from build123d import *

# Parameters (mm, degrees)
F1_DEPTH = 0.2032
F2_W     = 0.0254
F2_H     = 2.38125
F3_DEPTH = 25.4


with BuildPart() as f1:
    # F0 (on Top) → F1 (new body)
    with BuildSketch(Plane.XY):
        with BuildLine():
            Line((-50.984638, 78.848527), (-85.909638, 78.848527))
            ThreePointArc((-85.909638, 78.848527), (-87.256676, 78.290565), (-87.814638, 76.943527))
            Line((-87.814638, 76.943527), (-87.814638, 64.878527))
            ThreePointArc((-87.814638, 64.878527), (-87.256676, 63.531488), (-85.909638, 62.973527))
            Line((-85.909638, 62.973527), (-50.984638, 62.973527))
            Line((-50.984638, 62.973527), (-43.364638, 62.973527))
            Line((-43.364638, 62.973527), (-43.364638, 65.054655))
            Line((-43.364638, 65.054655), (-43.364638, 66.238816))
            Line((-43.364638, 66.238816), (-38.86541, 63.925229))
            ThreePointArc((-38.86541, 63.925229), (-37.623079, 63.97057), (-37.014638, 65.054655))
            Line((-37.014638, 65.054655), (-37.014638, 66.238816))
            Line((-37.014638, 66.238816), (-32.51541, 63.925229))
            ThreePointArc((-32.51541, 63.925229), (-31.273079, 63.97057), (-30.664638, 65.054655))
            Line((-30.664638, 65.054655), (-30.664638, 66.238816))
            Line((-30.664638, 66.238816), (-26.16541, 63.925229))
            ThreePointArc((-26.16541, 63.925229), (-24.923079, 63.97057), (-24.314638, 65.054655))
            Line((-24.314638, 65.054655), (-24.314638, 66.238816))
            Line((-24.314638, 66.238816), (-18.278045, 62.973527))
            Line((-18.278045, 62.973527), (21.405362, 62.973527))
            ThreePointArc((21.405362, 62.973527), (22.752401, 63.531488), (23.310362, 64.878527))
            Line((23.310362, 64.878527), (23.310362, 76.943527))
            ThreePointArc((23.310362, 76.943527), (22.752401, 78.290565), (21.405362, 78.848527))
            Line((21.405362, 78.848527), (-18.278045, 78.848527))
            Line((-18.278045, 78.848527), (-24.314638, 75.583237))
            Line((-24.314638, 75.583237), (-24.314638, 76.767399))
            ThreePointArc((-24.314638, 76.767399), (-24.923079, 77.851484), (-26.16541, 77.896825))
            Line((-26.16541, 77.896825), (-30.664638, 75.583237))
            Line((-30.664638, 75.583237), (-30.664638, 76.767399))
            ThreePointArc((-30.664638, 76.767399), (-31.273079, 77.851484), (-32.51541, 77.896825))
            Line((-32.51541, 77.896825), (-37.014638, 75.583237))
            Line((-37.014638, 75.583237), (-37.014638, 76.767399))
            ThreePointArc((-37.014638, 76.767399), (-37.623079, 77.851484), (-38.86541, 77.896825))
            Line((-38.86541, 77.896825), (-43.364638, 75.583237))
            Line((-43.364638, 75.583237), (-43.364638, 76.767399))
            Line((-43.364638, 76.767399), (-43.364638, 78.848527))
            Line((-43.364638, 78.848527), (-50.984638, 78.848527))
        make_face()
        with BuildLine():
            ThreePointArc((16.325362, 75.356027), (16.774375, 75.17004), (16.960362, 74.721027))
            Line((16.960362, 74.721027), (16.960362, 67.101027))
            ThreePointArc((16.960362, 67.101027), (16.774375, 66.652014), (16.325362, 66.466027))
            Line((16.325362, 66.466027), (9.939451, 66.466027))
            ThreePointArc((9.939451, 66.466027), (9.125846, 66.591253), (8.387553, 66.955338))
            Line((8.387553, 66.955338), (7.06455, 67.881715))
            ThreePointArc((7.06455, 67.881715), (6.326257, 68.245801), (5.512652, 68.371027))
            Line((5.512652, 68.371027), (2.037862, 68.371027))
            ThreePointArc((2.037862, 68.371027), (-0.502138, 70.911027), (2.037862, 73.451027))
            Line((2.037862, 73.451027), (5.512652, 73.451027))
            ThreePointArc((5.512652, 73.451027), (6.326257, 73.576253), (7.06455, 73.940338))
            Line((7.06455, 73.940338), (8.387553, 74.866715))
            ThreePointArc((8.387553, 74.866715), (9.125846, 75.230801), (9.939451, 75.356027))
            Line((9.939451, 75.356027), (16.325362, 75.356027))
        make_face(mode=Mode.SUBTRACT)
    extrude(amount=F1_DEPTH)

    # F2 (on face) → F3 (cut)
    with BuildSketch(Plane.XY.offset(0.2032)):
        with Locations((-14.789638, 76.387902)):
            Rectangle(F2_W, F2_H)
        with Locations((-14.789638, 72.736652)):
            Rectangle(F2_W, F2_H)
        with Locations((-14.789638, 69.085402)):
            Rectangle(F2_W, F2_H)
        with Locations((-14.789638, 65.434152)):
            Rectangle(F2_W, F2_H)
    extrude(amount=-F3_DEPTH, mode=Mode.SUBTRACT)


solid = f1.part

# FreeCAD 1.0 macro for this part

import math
import FreeCAD as App
import Part
import Sketcher
Q = App.Units.Quantity


def add_polygon(sketch, points):
    """Adds a closed chain of lines whose ends are joined by coincident constraints."""
    first, n = sketch.GeometryCount, len(points)
    for a, b in zip(points, points[1:] + points[:1]):
        sketch.addGeometry(Part.LineSegment(App.Vector(*a, 0), App.Vector(*b, 0)), False)
    for i in range(n):
        sketch.addConstraint(Sketcher.Constraint("Coincident", first + i, 2, first + (i + 1) % n, 1))

doc = App.newDocument("Part")
params = doc.addObject("Spreadsheet::Sheet", "Params")
for row, (alias, value) in enumerate([
    ("sketch1_radius", "0.1 in"),
    ("sketch1_radius2", "0.05 in"),
    ("sketch1_height", "0.3 in"),
    ("sketch1_radius3", "0.0750001 in"),
    ("sketch1_radius4", "0.025 in"),
    ("pad1_length", "0.008 in"),
    ("sketch2_width", "0.001 in"),
    ("sketch2_height", "0.09375 in"),
    ("pocket1_length", "1 in"),
], start=1):
    params.set(f"A{row}", alias)
    params.set(f"B{row}", "=" + value)
    params.setAlias(f"B{row}", alias)

body = doc.addObject("PartDesign::Body", "Body")

sketch1 = doc.addObject("Sketcher::SketchObject", "Sketch")
body.addObject(sketch1)
sketch1.AttachmentSupport = (doc.XY_Plane, [""])
sketch1.MapMode = "FlatFace"
sketch1.addGeometry([
    Part.ArcOfCircle(Part.Circle(App.Vector(-85.9, 76.9, 0), App.Vector(0, 0, 1), 1.9), math.radians(90), math.radians(180)),
    Part.LineSegment(App.Vector(-87.8, 76.9, 0), App.Vector(-87.8, 64.9, 0)),
    Part.ArcOfCircle(Part.Circle(App.Vector(-85.9, 64.9, 0), App.Vector(0, 0, 1), 1.9), math.radians(180), math.radians(270)),
    Part.LineSegment(App.Vector(-85.9, 63, 0), App.Vector(-43.4, 63, 0)),
    Part.LineSegment(App.Vector(-43.4, 63, 0), App.Vector(-43.4, 66.2, 0)),
    Part.LineSegment(App.Vector(-43.4, 66.2, 0), App.Vector(-38.9, 63.9, 0)),
    Part.ArcOfCircle(Part.Circle(App.Vector(-38.3, 65.1, 0), App.Vector(0, 0, 1), 1.3), math.radians(-117), math.radians(0)),
    Part.LineSegment(App.Vector(-37, 65.1, 0), App.Vector(-37, 66.2, 0)),
    Part.LineSegment(App.Vector(-37, 66.2, 0), App.Vector(-32.5, 63.9, 0)),
    Part.ArcOfCircle(Part.Circle(App.Vector(-31.9, 65.1, 0), App.Vector(0, 0, 1), 1.3), math.radians(-117), math.radians(0)),
    Part.LineSegment(App.Vector(-30.7, 65.1, 0), App.Vector(-30.7, 66.2, 0)),
    Part.LineSegment(App.Vector(-30.7, 66.2, 0), App.Vector(-26.2, 63.9, 0)),
    Part.ArcOfCircle(Part.Circle(App.Vector(-25.6, 65.1, 0), App.Vector(0, 0, 1), 1.3), math.radians(-117), math.radians(0)),
    Part.LineSegment(App.Vector(-24.3, 65.1, 0), App.Vector(-24.3, 66.2, 0)),
    Part.LineSegment(App.Vector(-24.3, 66.2, 0), App.Vector(-18.3, 63, 0)),
    Part.LineSegment(App.Vector(-18.3, 63, 0), App.Vector(21.4, 63, 0)),
    Part.ArcOfCircle(Part.Circle(App.Vector(21.4, 64.9, 0), App.Vector(0, 0, 1), 1.9), math.radians(-90), math.radians(0)),
    Part.LineSegment(App.Vector(23.3, 64.9, 0), App.Vector(23.3, 76.9, 0)),
    Part.ArcOfCircle(Part.Circle(App.Vector(21.4, 76.9, 0), App.Vector(0, 0, 1), 1.9), math.radians(0), math.radians(90)),
    Part.LineSegment(App.Vector(21.4, 78.8, 0), App.Vector(-18.3, 78.8, 0)),
    Part.LineSegment(App.Vector(-18.3, 78.8, 0), App.Vector(-24.3, 75.6, 0)),
    Part.LineSegment(App.Vector(-24.3, 75.6, 0), App.Vector(-24.3, 76.8, 0)),
    Part.ArcOfCircle(Part.Circle(App.Vector(-25.6, 76.8, 0), App.Vector(0, 0, 1), 1.3), math.radians(0), math.radians(117)),
    Part.LineSegment(App.Vector(-26.2, 77.9, 0), App.Vector(-30.7, 75.6, 0)),
    Part.LineSegment(App.Vector(-30.7, 75.6, 0), App.Vector(-30.7, 76.8, 0)),
    Part.ArcOfCircle(Part.Circle(App.Vector(-31.9, 76.8, 0), App.Vector(0, 0, 1), 1.3), math.radians(0), math.radians(117)),
    Part.LineSegment(App.Vector(-32.5, 77.9, 0), App.Vector(-37, 75.6, 0)),
    Part.LineSegment(App.Vector(-37, 75.6, 0), App.Vector(-37, 76.8, 0)),
    Part.ArcOfCircle(Part.Circle(App.Vector(-38.3, 76.8, 0), App.Vector(0, 0, 1), 1.3), math.radians(0), math.radians(117)),
    Part.LineSegment(App.Vector(-38.9, 77.9, 0), App.Vector(-43.4, 75.6, 0)),
    Part.LineSegment(App.Vector(-43.4, 75.6, 0), App.Vector(-43.4, 78.8, 0)),
    Part.LineSegment(App.Vector(-43.4, 78.8, 0), App.Vector(-85.9, 78.8, 0)),
    Part.LineSegment(App.Vector(9.9, 75.4, 0), App.Vector(16.3, 75.4, 0)),
    Part.ArcOfCircle(Part.Circle(App.Vector(16.3, 74.7, 0), App.Vector(0, 0, 1), 0.6), math.radians(0), math.radians(90)),
    Part.LineSegment(App.Vector(17, 74.7, 0), App.Vector(17, 67.1, 0)),
    Part.ArcOfCircle(Part.Circle(App.Vector(16.3, 67.1, 0), App.Vector(0, 0, 1), 0.6), math.radians(-90), math.radians(0)),
    Part.LineSegment(App.Vector(16.3, 66.5, 0), App.Vector(9.9, 66.5, 0)),
    Part.ArcOfCircle(Part.Circle(App.Vector(9.9, 69.2, 0), App.Vector(0, 0, 1), 2.7), math.radians(-125), math.radians(-90)),
    Part.LineSegment(App.Vector(8.4, 67, 0), App.Vector(7.1, 67.9, 0)),
    Part.ArcOfCircle(Part.Circle(App.Vector(5.5, 65.7, 0), App.Vector(0, 0, 1), 2.7), math.radians(55), math.radians(90)),
    Part.LineSegment(App.Vector(5.5, 68.4, 0), App.Vector(2, 68.4, 0)),
    Part.ArcOfCircle(Part.Circle(App.Vector(2, 70.9, 0), App.Vector(0, 0, 1), 2.5), math.radians(90), math.radians(270)),
    Part.LineSegment(App.Vector(2, 73.5, 0), App.Vector(5.5, 73.5, 0)),
    Part.ArcOfCircle(Part.Circle(App.Vector(5.5, 76.2, 0), App.Vector(0, 0, 1), 2.7), math.radians(-90), math.radians(-55)),
    Part.LineSegment(App.Vector(7.1, 73.9, 0), App.Vector(8.4, 74.9, 0)),
    Part.ArcOfCircle(Part.Circle(App.Vector(9.9, 72.7, 0), App.Vector(0, 0, 1), 2.7), math.radians(90), math.radians(125)),
], False)
sketch1.addConstraint([
    Sketcher.Constraint("Tangent", 0, 2, 1, 1),
    Sketcher.Constraint("Tangent", 1, 2, 2, 1),
    Sketcher.Constraint("Tangent", 2, 2, 3, 1),
    Sketcher.Constraint("Coincident", 3, 2, 4, 1),
    Sketcher.Constraint("Coincident", 4, 2, 5, 1),
    Sketcher.Constraint("Tangent", 5, 2, 6, 1),
    Sketcher.Constraint("Tangent", 6, 2, 7, 1),
    Sketcher.Constraint("Coincident", 7, 2, 8, 1),
    Sketcher.Constraint("Tangent", 8, 2, 9, 1),
    Sketcher.Constraint("Tangent", 9, 2, 10, 1),
    Sketcher.Constraint("Coincident", 10, 2, 11, 1),
    Sketcher.Constraint("Tangent", 11, 2, 12, 1),
    Sketcher.Constraint("Tangent", 12, 2, 13, 1),
    Sketcher.Constraint("Coincident", 13, 2, 14, 1),
    Sketcher.Constraint("Coincident", 14, 2, 15, 1),
    Sketcher.Constraint("Tangent", 15, 2, 16, 1),
    Sketcher.Constraint("Tangent", 16, 2, 17, 1),
    Sketcher.Constraint("Tangent", 17, 2, 18, 1),
    Sketcher.Constraint("Tangent", 18, 2, 19, 1),
    Sketcher.Constraint("Coincident", 19, 2, 20, 1),
    Sketcher.Constraint("Coincident", 20, 2, 21, 1),
    Sketcher.Constraint("Tangent", 21, 2, 22, 1),
    Sketcher.Constraint("Tangent", 22, 2, 23, 1),
    Sketcher.Constraint("Coincident", 23, 2, 24, 1),
    Sketcher.Constraint("Tangent", 24, 2, 25, 1),
    Sketcher.Constraint("Tangent", 25, 2, 26, 1),
    Sketcher.Constraint("Coincident", 26, 2, 27, 1),
    Sketcher.Constraint("Tangent", 27, 2, 28, 1),
    Sketcher.Constraint("Tangent", 28, 2, 29, 1),
    Sketcher.Constraint("Coincident", 29, 2, 30, 1),
    Sketcher.Constraint("Coincident", 30, 2, 31, 1),
    Sketcher.Constraint("Tangent", 31, 2, 0, 1),
    Sketcher.Constraint("Tangent", 32, 2, 33, 2),
    Sketcher.Constraint("Tangent", 33, 1, 34, 1),
    Sketcher.Constraint("Tangent", 34, 2, 35, 2),
    Sketcher.Constraint("Tangent", 35, 1, 36, 1),
    Sketcher.Constraint("Tangent", 36, 2, 37, 2),
    Sketcher.Constraint("Tangent", 37, 1, 38, 1),
    Sketcher.Constraint("Tangent", 38, 2, 39, 1),
    Sketcher.Constraint("Tangent", 39, 2, 40, 1),
    Sketcher.Constraint("Tangent", 40, 2, 41, 2),
    Sketcher.Constraint("Tangent", 41, 1, 42, 1),
    Sketcher.Constraint("Tangent", 42, 2, 43, 1),
    Sketcher.Constraint("Tangent", 43, 2, 44, 1),
    Sketcher.Constraint("Tangent", 44, 2, 45, 2),
    Sketcher.Constraint("Tangent", 45, 1, 32, 1),
    Sketcher.Constraint("Vertical", 1),
    Sketcher.Constraint("Horizontal", 3),
    Sketcher.Constraint("Vertical", 4),
    Sketcher.Constraint("Vertical", 7),
    Sketcher.Constraint("Vertical", 10),
    Sketcher.Constraint("Vertical", 13),
    Sketcher.Constraint("Horizontal", 15),
    Sketcher.Constraint("Vertical", 17),
    Sketcher.Constraint("Horizontal", 19),
    Sketcher.Constraint("Vertical", 21),
    Sketcher.Constraint("Vertical", 24),
    Sketcher.Constraint("Vertical", 27),
    Sketcher.Constraint("Vertical", 30),
    Sketcher.Constraint("Horizontal", 31),
    Sketcher.Constraint("Horizontal", 32),
    Sketcher.Constraint("Vertical", 34),
    Sketcher.Constraint("Horizontal", 36),
    Sketcher.Constraint("Horizontal", 40),
    Sketcher.Constraint("Horizontal", 42),
    Sketcher.Constraint("Equal", 0, 2),
    Sketcher.Constraint("Equal", 6, 9),
    Sketcher.Constraint("Equal", 9, 12),
    Sketcher.Constraint("Equal", 2, 16),
    Sketcher.Constraint("Equal", 16, 18),
    Sketcher.Constraint("Equal", 12, 22),
    Sketcher.Constraint("Equal", 22, 25),
    Sketcher.Constraint("Equal", 25, 28),
    Sketcher.Constraint("Equal", 33, 35),
    Sketcher.Constraint("Equal", 37, 43),
    Sketcher.Constraint("Equal", 39, 45),
    Sketcher.Constraint("Parallel", 5, 8),
    Sketcher.Constraint("Parallel", 8, 11),
    Sketcher.Constraint("Parallel", 23, 26),
    Sketcher.Constraint("Parallel", 26, 29),
    Sketcher.Constraint("Horizontal", 6, 3, 9, 3),
    Sketcher.Constraint("Horizontal", 9, 3, 12, 3),
    Sketcher.Constraint("Horizontal", 2, 3, 16, 3),
    Sketcher.Constraint("Horizontal", 0, 3, 18, 3),
    Sketcher.Constraint("Horizontal", 22, 3, 25, 3),
    Sketcher.Constraint("Horizontal", 25, 3, 28, 3),
    Sketcher.Constraint("Horizontal", 4, 2, 7, 2),
    Sketcher.Constraint("Horizontal", 7, 2, 10, 2),
    Sketcher.Constraint("Horizontal", 10, 2, 13, 2),
    Sketcher.Constraint("Horizontal", 20, 2, 23, 2),
    Sketcher.Constraint("Horizontal", 23, 2, 26, 2),
    Sketcher.Constraint("Horizontal", 26, 2, 29, 2),
    Sketcher.Constraint("Vertical", 12, 3, 22, 3),
    Sketcher.Constraint("Vertical", 9, 3, 25, 3),
    Sketcher.Constraint("Vertical", 39, 3, 43, 3),
    Sketcher.Constraint("Vertical", 37, 3, 45, 3),
    Sketcher.Constraint("Vertical", 14, 2, 19, 2),
    Sketcher.Constraint("Vertical", 11, 2, 22, 2),
    Sketcher.Constraint("Vertical", 38, 2, 43, 2),
    Sketcher.Constraint("Vertical", 37, 1, 44, 2),
    Sketcher.Constraint("Equal", 4, 30),
    Sketcher.Constraint("Radius", 41, Q("0.1 in")),
    Sketcher.Constraint("Radius", 6, Q("0.05 in")),
    Sketcher.Constraint("DistanceY", 34, 2, 34, 1, Q("0.3 in")),
    Sketcher.Constraint("Angle", 38, Q("144.999991 deg")),
    Sketcher.Constraint("Radius", 0, Q("0.0750001 in")),
    Sketcher.Constraint("Radius", 33, Q("0.025 in")),
    Sketcher.Constraint("DistanceX", 3, 1, 3, 2, Q("1.675 in")),
    Sketcher.Constraint("DistanceY", 1, 2, 1, 1, Q("0.475 in")),
    Sketcher.Constraint("Radius", 37, Q("2.705661 mm")),
    Sketcher.Constraint("DistanceX", 32, 1, 32, 2, Q("6.385911 mm")),
    Sketcher.Constraint("DistanceX", 40, 2, 40, 1, Q("3.47479 mm")),
    Sketcher.Constraint("DistanceY", 4, 1, 4, 2, Q("3.265289 mm")),
    Sketcher.Constraint("DistanceY", 7, 1, 7, 2, Q("1.184161 mm")),
    Sketcher.Constraint("DistanceY", -1, 1, 22, 3, Q("76.7674 mm")),
    Sketcher.Constraint("Distance", 14, Q("6.863131 mm")),
    Sketcher.Constraint("DistanceX", 15, 1, 15, 2, Q("39.683407 mm")),
    Sketcher.Constraint("DistanceX", 2, 3, -1, 1, Q("85.909638 mm")),
    Sketcher.Constraint("DistanceY", -1, 1, 37, 3, Q("69.171688 mm")),
    Sketcher.Constraint("DistanceX", -1, 1, 39, 3, Q("5.512651 mm")),
    Sketcher.Constraint("DistanceX", 5, 2, -1, 1, Q("38.86541 mm")),
])
sketch1.setExpression("Constraints[101]", "Params.sketch1_radius")
sketch1.setExpression("Constraints[102]", "Params.sketch1_radius2")
sketch1.setExpression("Constraints[103]", "Params.sketch1_height")
sketch1.setExpression("Constraints[105]", "Params.sketch1_radius3")
sketch1.setExpression("Constraints[106]", "Params.sketch1_radius4")
pad1 = doc.addObject("PartDesign::Pad", "Pad")
body.addObject(pad1)
pad1.Profile = sketch1
pad1.setExpression("Length", "Params.pad1_length")

sketch2 = doc.addObject("Sketcher::SketchObject", "Sketch001")
body.addObject(sketch2)
sketch2.AttachmentSupport = (doc.XY_Plane, [""])
sketch2.MapMode = "FlatFace"
sketch2.AttachmentOffset = App.Placement(App.Vector(0, 0, 0.008 * 25.4), App.Rotation())
add_polygon(sketch2, [(-14.802, 77.579), (-14.802, 75.197), (-14.777, 75.197), (-14.777, 77.579)])
add_polygon(sketch2, [(-14.802, 73.927), (-14.802, 71.546), (-14.777, 71.546), (-14.777, 73.927)])
add_polygon(sketch2, [(-14.802, 70.276), (-14.802, 67.895), (-14.777, 67.895), (-14.777, 70.276)])
add_polygon(sketch2, [(-14.802, 66.625), (-14.802, 64.244), (-14.777, 64.244), (-14.777, 66.625)])
sketch2.addConstraint([
    Sketcher.Constraint("Vertical", 0),
    Sketcher.Constraint("Horizontal", 1),
    Sketcher.Constraint("Vertical", 2),
    Sketcher.Constraint("Horizontal", 3),
    Sketcher.Constraint("Vertical", 4),
    Sketcher.Constraint("Horizontal", 5),
    Sketcher.Constraint("Vertical", 6),
    Sketcher.Constraint("Horizontal", 7),
    Sketcher.Constraint("Vertical", 8),
    Sketcher.Constraint("Horizontal", 9),
    Sketcher.Constraint("Vertical", 10),
    Sketcher.Constraint("Horizontal", 11),
    Sketcher.Constraint("Vertical", 12),
    Sketcher.Constraint("Horizontal", 13),
    Sketcher.Constraint("Vertical", 14),
    Sketcher.Constraint("Horizontal", 15),
    Sketcher.Constraint("Vertical", 3, 2, 4, 2),
    Sketcher.Constraint("Vertical", 2, 2, 5, 2),
    Sketcher.Constraint("Vertical", 7, 2, 8, 2),
    Sketcher.Constraint("Vertical", 6, 2, 9, 2),
    Sketcher.Constraint("Vertical", 11, 2, 12, 2),
    Sketcher.Constraint("Vertical", 10, 2, 13, 2),
    Sketcher.Constraint("Equal", 2, 4),
    Sketcher.Constraint("Equal", 6, 8),
    Sketcher.Constraint("Equal", 10, 12),
    Sketcher.Constraint("DistanceX", 1, 1, 1, 2, Q("0.001 in")),
    Sketcher.Constraint("DistanceY", 0, 2, 0, 1, Q("0.09375 in")),
    Sketcher.Constraint("DistanceY", 6, 2, 1, 2, Q("0.05 in")),
    Sketcher.Constraint("DistanceY", 10, 2, 5, 2, Q("0.05 in")),
    Sketcher.Constraint("DistanceY", 14, 2, 9, 2, Q("0.05 in")),
    Sketcher.Constraint("DistanceX", 0, 2, -1, 1, Q("14.802338 mm")),
    Sketcher.Constraint("DistanceY", -1, 1, 0, 2, Q("75.197277 mm")),
])
sketch2.setExpression("Constraints[41]", "Params.sketch2_width")
sketch2.setExpression("Constraints[42]", "Params.sketch2_height")
pocket1 = doc.addObject("PartDesign::Pocket", "Pocket")
body.addObject(pocket1)
pocket1.Profile = sketch2
pocket1.setExpression("Length", "Params.pocket1_length")

doc.recompute()
